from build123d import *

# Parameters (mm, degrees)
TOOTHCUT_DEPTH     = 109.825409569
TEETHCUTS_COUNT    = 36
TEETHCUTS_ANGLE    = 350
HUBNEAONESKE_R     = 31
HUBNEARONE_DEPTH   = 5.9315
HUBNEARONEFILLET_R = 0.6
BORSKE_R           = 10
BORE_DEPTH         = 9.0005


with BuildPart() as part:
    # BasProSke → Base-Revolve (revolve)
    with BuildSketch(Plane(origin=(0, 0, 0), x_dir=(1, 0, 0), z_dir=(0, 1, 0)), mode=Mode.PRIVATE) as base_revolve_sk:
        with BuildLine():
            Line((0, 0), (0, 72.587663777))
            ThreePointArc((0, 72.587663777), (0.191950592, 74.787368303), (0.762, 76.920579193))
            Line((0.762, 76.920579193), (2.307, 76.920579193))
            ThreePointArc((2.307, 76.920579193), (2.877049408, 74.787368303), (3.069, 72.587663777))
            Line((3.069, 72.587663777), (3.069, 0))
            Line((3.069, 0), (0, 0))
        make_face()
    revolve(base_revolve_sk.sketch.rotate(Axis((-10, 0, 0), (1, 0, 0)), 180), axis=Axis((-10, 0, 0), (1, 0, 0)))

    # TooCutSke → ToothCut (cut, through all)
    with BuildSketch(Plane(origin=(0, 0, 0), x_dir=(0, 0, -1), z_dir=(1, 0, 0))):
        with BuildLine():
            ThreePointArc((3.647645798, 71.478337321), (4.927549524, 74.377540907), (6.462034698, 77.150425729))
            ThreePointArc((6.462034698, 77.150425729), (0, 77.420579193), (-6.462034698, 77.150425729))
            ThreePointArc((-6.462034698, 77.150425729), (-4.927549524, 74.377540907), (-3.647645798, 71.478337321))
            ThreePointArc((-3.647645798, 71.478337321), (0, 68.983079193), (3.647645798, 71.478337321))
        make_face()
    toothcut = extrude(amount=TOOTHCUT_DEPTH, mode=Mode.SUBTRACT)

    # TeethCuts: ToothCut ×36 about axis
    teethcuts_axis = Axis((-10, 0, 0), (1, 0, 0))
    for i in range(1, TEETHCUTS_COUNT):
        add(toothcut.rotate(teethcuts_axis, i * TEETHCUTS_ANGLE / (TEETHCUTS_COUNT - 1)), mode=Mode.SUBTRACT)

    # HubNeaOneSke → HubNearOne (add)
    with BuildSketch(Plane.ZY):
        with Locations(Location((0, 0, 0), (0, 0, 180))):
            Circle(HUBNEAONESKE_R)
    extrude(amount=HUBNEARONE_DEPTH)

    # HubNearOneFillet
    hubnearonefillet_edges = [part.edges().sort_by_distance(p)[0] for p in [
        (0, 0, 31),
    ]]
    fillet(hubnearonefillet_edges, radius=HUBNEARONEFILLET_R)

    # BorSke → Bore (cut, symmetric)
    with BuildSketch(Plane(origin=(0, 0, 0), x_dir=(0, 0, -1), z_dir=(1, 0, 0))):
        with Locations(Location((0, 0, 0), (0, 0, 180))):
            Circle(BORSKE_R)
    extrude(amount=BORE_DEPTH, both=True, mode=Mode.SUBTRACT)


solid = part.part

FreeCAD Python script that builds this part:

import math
import FreeCAD as App
import Part
import Sketcher

V = App.Vector


def edges_at(feature, points):
    """Names of the edges that pass closest to the given points."""
    edges = feature.Shape.Edges
    near = lambda p: min(range(len(edges)), key=lambda i: edges[i].distToShape(Part.Vertex(*p))[0])
    return sorted({f"Edge{near(p) + 1}" for p in points})

doc = App.newDocument("Part")
params = doc.addObject("Spreadsheet::Sheet", "Params")
for row, (alias, value) in enumerate([
    ("sketch1_radius", "12.7 mm"),
    ("revolution_angle", "360 deg"),
    ("sketch2_radius", "35.34 mm"),
    ("sketch3_diameter", "62 mm"),
    ("pad1_length", "5.9315 mm"),
    ("fillet_radius", "0.6 mm"),
    ("sketch4_diameter", "20 mm"),
    ("pocket2_length", "18.001 mm"),
], start=1):
    params.set(f"A{row}", alias)
    params.set(f"B{row}", "=" + value)
    params.setAlias(f"B{row}", alias)

body = doc.addObject("PartDesign::Body", "Body")

# Sketch on XZ plane
sketch1 = doc.addObject("Sketcher::SketchObject", "Sketch")
body.addObject(sketch1)
sketch1.AttachmentSupport = (doc.XZ_Plane, [""])
sketch1.MapMode = "FlatFace"
sketch1.addGeometry(Part.LineSegment(V(0, -72.6, 0), V(0, 0, 0)), False)
sketch1.addGeometry(Part.LineSegment(V(0, 0, 0), V(3.1, 0, 0)), False)
sketch1.addGeometry(Part.LineSegment(V(3.1, 0, 0), V(3.1, -72.6, 0)), False)
sketch1.addGeometry(Part.ArcOfCircle(Part.Circle(V(-9.6, -72.6, 0), V(0, 0, 1), 12.7), math.radians(-19.95), math.radians(0)), False)
sketch1.addGeometry(Part.LineSegment(V(2.3, -76.9, 0), V(0.8, -76.9, 0)), False)
sketch1.addGeometry(Part.ArcOfCircle(Part.Circle(V(12.7, -72.6, 0), V(0, 0, 1), 12.7), math.radians(-180), math.radians(-160.05)), False)
sketch1.addConstraint(Sketcher.Constraint("Coincident", 0, 2, 1, 1))
sketch1.addConstraint(Sketcher.Constraint("Coincident", 1, 2, 2, 1))
sketch1.addConstraint(Sketcher.Constraint("Tangent", 2, 2, 3, 2))
sketch1.addConstraint(Sketcher.Constraint("Coincident", 3, 1, 4, 1))
sketch1.addConstraint(Sketcher.Constraint("Coincident", 4, 2, 5, 2))
sketch1.addConstraint(Sketcher.Constraint("Tangent", 5, 1, 0, 1))
sketch1.addConstraint(Sketcher.Constraint("Vertical", 0))
sketch1.addConstraint(Sketcher.Constraint("Horizontal", 1))
sketch1.addConstraint(Sketcher.Constraint("Vertical", 2))
sketch1.addConstraint(Sketcher.Constraint("Horizontal", 4))
sketch1.addConstraint(Sketcher.Constraint("Coincident", 0, 2, -1, 1))
sketch1.addConstraint(Sketcher.Constraint("Equal", 3, 5))
sketch1.addConstraint(Sketcher.Constraint("Horizontal", 3, 3, 5, 3))
sketch1.addConstraint(Sketcher.Constraint("Radius", 3, 12.7))
sketch1.addConstraint(Sketcher.Constraint("DistanceX", 1, 1, 1, 2, 3.069))
sketch1.addConstraint(Sketcher.Constraint("DistanceX", 4, 2, 4, 1, 1.545))
sketch1.addConstraint(Sketcher.Constraint("DistanceY", 0, 1, 0, 2, 72.587664))
sketch1.setExpression("Constraints[13]", "Params.sketch1_radius")
revolution = doc.addObject("PartDesign::Revolution", "Revolution")
body.addObject(revolution)
revolution.Profile = sketch1
revolution.ReferenceAxis = (sketch1, ["H_Axis"])
revolution.setExpression("Angle", "Params.revolution_angle")

# Sketch on YZ plane
sketch2 = doc.addObject("Sketcher::SketchObject", "Sketch001")
body.addObject(sketch2)
sketch2.AttachmentSupport = (doc.YZ_Plane, [""])
sketch2.MapMode = "FlatFace"
sketch2.addGeometry(Part.ArcOfCircle(Part.Circle(V(58.7, -36.6, 0), V(0, 0, 1), 35.3), math.radians(58.47), math.radians(68.75)), False)
sketch2.addGeometry(Part.ArcOfCircle(Part.Circle(V(0, 0, 0), V(0, 0, 1), 77.4), math.radians(-4.79), math.radians(4.79)), False)
sketch2.addGeometry(Part.ArcOfCircle(Part.Circle(V(58.7, 36.6, 0), V(0, 0, 1), 35.3), math.radians(-68.75), math.radians(-58.47)), False)
sketch2.addGeometry(Part.ArcOfCircle(Part.Circle(V(72.9, 0, 0), V(0, 0, 1), 3.9), math.radians(111), math.radians(249)), False)
sketch2.addConstraint(Sketcher.Constraint("Coincident", 0, 1, 1, 1))
sketch2.addConstraint(Sketcher.Constraint("Coincident", 1, 2, 2, 2))
sketch2.addConstraint(Sketcher.Constraint("Tangent", 2, 1, 3, 1))
sketch2.addConstraint(Sketcher.Constraint("Tangent", 3, 2, 0, 2))
sketch2.addConstraint(Sketcher.Constraint("Coincident", 1, 3, -1, 1))
sketch2.addConstraint(Sketcher.Constraint("Equal", 0, 2))
sketch2.addConstraint(Sketcher.Constraint("Symmetric", 0, 3, 2, 3, -1))
sketch2.addConstraint(Sketcher.Constraint("Radius", 0, 35.34))
sketch2.addConstraint(Sketcher.Constraint("Radius", 1, 77.420579))
sketch2.addConstraint(Sketcher.Constraint("Radius", 3, 3.91375))
sketch2.addConstraint(Sketcher.Constraint("DistanceX", -1, 1, 3, 3, 72.896829))
sketch2.addConstraint(Sketcher.Constraint("DistanceX", 0, 3, 0, 1, 18.480649))
sketch2.setExpression("Constraints[7]", "Params.sketch2_radius")
pocket1 = doc.addObject("PartDesign::Pocket", "Pocket")
body.addObject(pocket1)
pocket1.Profile = sketch2
pocket1.Type = "ThroughAll"
pocket1.Reversed = True
doc.recompute()

polarpattern = doc.addObject("PartDesign::PolarPattern", "PolarPattern")
body.addObject(polarpattern)
polarpattern.Originals = [pocket1]
polarpattern.Axis = (doc.X_Axis, [""])
polarpattern.Angle = 360
polarpattern.Occurrences = 36
body.Tip = polarpattern

# Sketch on YZ plane
sketch3 = doc.addObject("Sketcher::SketchObject", "Sketch002")
body.addObject(sketch3)
sketch3.AttachmentSupport = (doc.YZ_Plane, [""])
sketch3.MapMode = "FlatFace"
sketch3.addGeometry(Part.Circle(V(0, 0, 0), V(0, 0, 1), 31), False)
sketch3.addConstraint(Sketcher.Constraint("Coincident", 0, 3, -1, 1))
sketch3.addConstraint(Sketcher.Constraint("Diameter", 0, 62.0))
sketch3.setExpression("Constraints[1]", "Params.sketch3_diameter")
pad1 = doc.addObject("PartDesign::Pad", "Pad")
body.addObject(pad1)
pad1.Profile = sketch3
pad1.setExpression("Length", "Params.pad1_length")
pad1.Reversed = True
doc.recompute()

fillet = doc.addObject("PartDesign::Fillet", "Fillet")
body.addObject(fillet)
fillet.Base = (pad1, edges_at(pad1, [(0, 0, 31)]))
fillet.setExpression("Radius", "Params.fillet_radius")

# Sketch on YZ plane
sketch4 = doc.addObject("Sketcher::SketchObject", "Sketch003")
body.addObject(sketch4)
sketch4.AttachmentSupport = (doc.YZ_Plane, [""])
sketch4.MapMode = "FlatFace"
sketch4.addGeometry(Part.Circle(V(0, 0, 0), V(0, 0, 1), 10), False)
sketch4.addConstraint(Sketcher.Constraint("Coincident", 0, 3, -1, 1))
sketch4.addConstraint(Sketcher.Constraint("Diameter", 0, 20.0))
sketch4.setExpression("Constraints[1]", "Params.sketch4_diameter")
pocket2 = doc.addObject("PartDesign::Pocket", "Pocket001")
body.addObject(pocket2)
pocket2.Profile = sketch4
pocket2.setExpression("Length", "Params.pocket2_length")
pocket2.Midplane = True

doc.recompute()
